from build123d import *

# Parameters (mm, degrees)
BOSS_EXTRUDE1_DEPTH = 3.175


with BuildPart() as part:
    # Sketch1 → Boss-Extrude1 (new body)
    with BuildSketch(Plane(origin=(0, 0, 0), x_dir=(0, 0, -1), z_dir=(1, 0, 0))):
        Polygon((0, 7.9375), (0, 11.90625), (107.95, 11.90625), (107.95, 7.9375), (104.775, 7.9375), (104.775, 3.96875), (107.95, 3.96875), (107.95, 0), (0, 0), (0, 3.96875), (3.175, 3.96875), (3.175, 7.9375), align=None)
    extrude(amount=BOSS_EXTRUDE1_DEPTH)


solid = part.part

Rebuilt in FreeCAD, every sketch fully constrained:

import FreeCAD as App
import Part
import Sketcher
Q = App.Units.Quantity

doc = App.newDocument("Part")
body = doc.addObject("PartDesign::Body", "Body")

sketch1 = body.newObject("Sketcher::SketchObject", "Sketch")
sketch1.AttachmentSupport = (doc.getObject("YZ_Plane"), [""])
sketch1.MapMode = "FlatFace"
sketch1.addGeometry(Part.LineSegment(App.Vector(11.90625, 0, 0), App.Vector(7.9375, 0, 0)), False)
sketch1.addGeometry(Part.LineSegment(App.Vector(7.9375, 0, 0), App.Vector(7.9375, -3.175, 0)), False)
sketch1.addGeometry(Part.LineSegment(App.Vector(7.9375, -3.175, 0), App.Vector(3.96875, -3.175, 0)), False)
sketch1.addGeometry(Part.LineSegment(App.Vector(3.96875, -3.175, 0), App.Vector(3.96875, 0, 0)), False)
sketch1.addGeometry(Part.LineSegment(App.Vector(3.96875, 0, 0), App.Vector(0, 0, 0)), False)
sketch1.addGeometry(Part.LineSegment(App.Vector(0, 0, 0), App.Vector(0, -107.95, 0)), False)
sketch1.addGeometry(Part.LineSegment(App.Vector(0, -107.95, 0), App.Vector(3.96875, -107.95, 0)), False)
sketch1.addGeometry(Part.LineSegment(App.Vector(3.96875, -107.95, 0), App.Vector(3.96875, -104.775, 0)), False)
sketch1.addGeometry(Part.LineSegment(App.Vector(3.96875, -104.775, 0), App.Vector(7.9375, -104.775, 0)), False)
sketch1.addGeometry(Part.LineSegment(App.Vector(7.9375, -104.775, 0), App.Vector(7.9375, -107.95, 0)), False)
sketch1.addGeometry(Part.LineSegment(App.Vector(7.9375, -107.95, 0), App.Vector(11.90625, -107.95, 0)), False)
sketch1.addGeometry(Part.LineSegment(App.Vector(11.90625, -107.95, 0), App.Vector(11.90625, 0, 0)), False)
sketch1.addConstraint(Sketcher.Constraint("Coincident", 0, 2, 1, 1))
sketch1.addConstraint(Sketcher.Constraint("Coincident", 1, 2, 2, 1))
sketch1.addConstraint(Sketcher.Constraint("Coincident", 2, 2, 3, 1))
sketch1.addConstraint(Sketcher.Constraint("Coincident", 3, 2, 4, 1))
sketch1.addConstraint(Sketcher.Constraint("Coincident", 4, 2, 5, 1))
sketch1.addConstraint(Sketcher.Constraint("Coincident", 5, 2, 6, 1))
sketch1.addConstraint(Sketcher.Constraint("Coincident", 6, 2, 7, 1))
sketch1.addConstraint(Sketcher.Constraint("Coincident", 7, 2, 8, 1))
sketch1.addConstraint(Sketcher.Constraint("Coincident", 8, 2, 9, 1))
sketch1.addConstraint(Sketcher.Constraint("Coincident", 9, 2, 10, 1))
sketch1.addConstraint(Sketcher.Constraint("Coincident", 10, 2, 11, 1))
sketch1.addConstraint(Sketcher.Constraint("Coincident", 11, 2, 0, 1))
sketch1.addConstraint(Sketcher.Constraint("Horizontal", 0))
sketch1.addConstraint(Sketcher.Constraint("Vertical", 1))
sketch1.addConstraint(Sketcher.Constraint("Horizontal", 2))
sketch1.addConstraint(Sketcher.Constraint("Vertical", 3))
sketch1.addConstraint(Sketcher.Constraint("Horizontal", 4))
sketch1.addConstraint(Sketcher.Constraint("Vertical", 5))
sketch1.addConstraint(Sketcher.Constraint("Horizontal", 6))
sketch1.addConstraint(Sketcher.Constraint("Vertical", 7))
sketch1.addConstraint(Sketcher.Constraint("Horizontal", 8))
sketch1.addConstraint(Sketcher.Constraint("Vertical", 9))
sketch1.addConstraint(Sketcher.Constraint("Horizontal", 10))
sketch1.addConstraint(Sketcher.Constraint("Vertical", 11))
sketch1.addConstraint(Sketcher.Constraint("Coincident", 4, 2, -1, 1))
sketch1.addConstraint(Sketcher.Constraint("PointOnObject", 0, 2, -1))
sketch1.addConstraint(Sketcher.Constraint("Horizontal", 6, 2, 9, 2))
sketch1.addConstraint(Sketcher.Constraint("Vertical", 3, 2, 6, 2))
sketch1.addConstraint(Sketcher.Constraint("Vertical", 1, 2, 8, 2))
sketch1.addConstraint(Sketcher.Constraint("Equal", 0, 2))
sketch1.addConstraint(Sketcher.Constraint("Equal", 2, 4))
sketch1.addConstraint(Sketcher.Constraint("Equal", 3, 7))
sketch1.addConstraint(Sketcher.Constraint("DistanceY", 7, 2, 2, 2, Q("4 in")))
sketch1.addConstraint(Sketcher.Constraint("DistanceY", 5, 2, 5, 1, Q("4.25 in")))
sketch1.addConstraint(Sketcher.Constraint("DistanceX", 0, 2, 0, 1, Q("0.15625 in")))
pad1 = body.newObject("PartDesign::Pad", "Pad")
pad1.Profile = sketch1
pad1.Length = Q("0.125 in")

doc.recompute()
